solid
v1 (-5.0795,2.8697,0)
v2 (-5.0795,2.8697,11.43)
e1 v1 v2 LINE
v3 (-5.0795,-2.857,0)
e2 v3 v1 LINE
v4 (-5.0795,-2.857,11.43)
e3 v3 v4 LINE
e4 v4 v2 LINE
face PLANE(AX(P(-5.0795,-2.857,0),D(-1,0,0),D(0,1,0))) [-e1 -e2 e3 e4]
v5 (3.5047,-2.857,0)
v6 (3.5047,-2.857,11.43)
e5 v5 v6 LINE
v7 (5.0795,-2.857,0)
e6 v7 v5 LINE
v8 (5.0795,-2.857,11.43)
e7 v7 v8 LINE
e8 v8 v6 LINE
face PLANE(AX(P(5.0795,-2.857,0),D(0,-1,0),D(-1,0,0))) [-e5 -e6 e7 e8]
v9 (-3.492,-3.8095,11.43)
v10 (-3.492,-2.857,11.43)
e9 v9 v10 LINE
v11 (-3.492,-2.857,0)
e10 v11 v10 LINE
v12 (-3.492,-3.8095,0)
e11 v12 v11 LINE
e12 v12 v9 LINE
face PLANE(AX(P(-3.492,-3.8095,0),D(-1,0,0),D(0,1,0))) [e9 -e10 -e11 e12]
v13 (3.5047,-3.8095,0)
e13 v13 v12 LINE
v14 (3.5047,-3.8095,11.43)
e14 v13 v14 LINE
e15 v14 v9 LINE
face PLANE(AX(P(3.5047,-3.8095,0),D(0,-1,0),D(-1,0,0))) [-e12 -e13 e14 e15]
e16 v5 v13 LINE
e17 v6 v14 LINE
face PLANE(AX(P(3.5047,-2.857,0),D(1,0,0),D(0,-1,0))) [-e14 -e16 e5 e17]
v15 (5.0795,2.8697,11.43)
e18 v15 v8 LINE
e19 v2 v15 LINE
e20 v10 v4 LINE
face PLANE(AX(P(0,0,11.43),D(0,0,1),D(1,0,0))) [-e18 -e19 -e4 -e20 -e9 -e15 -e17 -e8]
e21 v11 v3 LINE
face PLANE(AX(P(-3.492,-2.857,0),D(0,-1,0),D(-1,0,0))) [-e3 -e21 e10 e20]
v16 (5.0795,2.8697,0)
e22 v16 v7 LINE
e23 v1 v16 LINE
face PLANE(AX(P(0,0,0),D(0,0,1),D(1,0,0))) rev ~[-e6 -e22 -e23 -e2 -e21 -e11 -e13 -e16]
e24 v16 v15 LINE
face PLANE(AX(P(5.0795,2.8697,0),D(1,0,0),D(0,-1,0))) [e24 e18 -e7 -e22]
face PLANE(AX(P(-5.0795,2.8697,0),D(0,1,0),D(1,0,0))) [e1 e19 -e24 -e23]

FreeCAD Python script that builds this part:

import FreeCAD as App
import Part
import Sketcher
from FreeCAD import Vector
Q = App.Units.Quantity

doc = App.newDocument("Part")
body = doc.addObject("PartDesign::Body", "Body")

# Sketch on XY plane
sketch1 = body.newObject("Sketcher::SketchObject", "Sketch")
sketch1.AttachmentSupport = (doc.getObject("XY_Plane"), [""])
sketch1.MapMode = "FlatFace"
sketch1.addGeometry([
    Part.LineSegment(Vector(3.5047, -2.857, 0), Vector(5.0795, -2.857, 0)),  # 0
    Part.LineSegment(Vector(5.0795, -2.857, 0), Vector(5.0795, 2.8697, 0)),  # 1
    Part.LineSegment(Vector(5.0795, 2.8697, 0), Vector(-5.0795, 2.8697, 0)),  # 2
    Part.LineSegment(Vector(-5.0795, 2.8697, 0), Vector(-5.0795, -2.857, 0)),  # 3
    Part.LineSegment(Vector(-5.0795, -2.857, 0), Vector(-3.492, -2.857, 0)),  # 4
    Part.LineSegment(Vector(-3.492, -2.857, 0), Vector(-3.492, -3.8095, 0)),  # 5
    Part.LineSegment(Vector(-3.492, -3.8095, 0), Vector(3.5047, -3.8095, 0)),  # 6
    Part.LineSegment(Vector(3.5047, -3.8095, 0), Vector(3.5047, -2.857, 0)),  # 7
], False)
sketch1.addConstraint([
    Sketcher.Constraint("Coincident", 0, 2, 1, 1),
    Sketcher.Constraint("Coincident", 1, 2, 2, 1),
    Sketcher.Constraint("Coincident", 2, 2, 3, 1),
    Sketcher.Constraint("Coincident", 3, 2, 4, 1),
    Sketcher.Constraint("Coincident", 4, 2, 5, 1),
    Sketcher.Constraint("Coincident", 5, 2, 6, 1),
    Sketcher.Constraint("Coincident", 6, 2, 7, 1),
    Sketcher.Constraint("Coincident", 7, 2, 0, 1),
    Sketcher.Constraint("Horizontal", 0),
    Sketcher.Constraint("Vertical", 1),
    Sketcher.Constraint("Horizontal", 2),
    Sketcher.Constraint("Vertical", 3),
    Sketcher.Constraint("Horizontal", 4),
    Sketcher.Constraint("Vertical", 5),
    Sketcher.Constraint("Horizontal", 6),
    Sketcher.Constraint("Vertical", 7),
    Sketcher.Constraint("Symmetric", 0, 2, 3, 2, -2),
    Sketcher.Constraint("DistanceX", 0, 1, 0, 2, Q("0.062 in")),
    Sketcher.Constraint("DistanceX", 4, 1, 4, 2, Q("0.0625 in")),
    Sketcher.Constraint("DistanceY", 5, 2, 5, 1, Q("0.0375 in")),
    Sketcher.Constraint("DistanceX", 2, 2, 2, 1, 10.159),
    Sketcher.Constraint("DistanceY", 1, 1, 1, 2, 5.7267),
    Sketcher.Constraint("DistanceY", 0, 2, -1, 1, 2.857),
])
pad1 = body.newObject("PartDesign::Pad", "Pad")
pad1.Profile = sketch1
pad1.Length = Q("0.45 in")

doc.recompute()
